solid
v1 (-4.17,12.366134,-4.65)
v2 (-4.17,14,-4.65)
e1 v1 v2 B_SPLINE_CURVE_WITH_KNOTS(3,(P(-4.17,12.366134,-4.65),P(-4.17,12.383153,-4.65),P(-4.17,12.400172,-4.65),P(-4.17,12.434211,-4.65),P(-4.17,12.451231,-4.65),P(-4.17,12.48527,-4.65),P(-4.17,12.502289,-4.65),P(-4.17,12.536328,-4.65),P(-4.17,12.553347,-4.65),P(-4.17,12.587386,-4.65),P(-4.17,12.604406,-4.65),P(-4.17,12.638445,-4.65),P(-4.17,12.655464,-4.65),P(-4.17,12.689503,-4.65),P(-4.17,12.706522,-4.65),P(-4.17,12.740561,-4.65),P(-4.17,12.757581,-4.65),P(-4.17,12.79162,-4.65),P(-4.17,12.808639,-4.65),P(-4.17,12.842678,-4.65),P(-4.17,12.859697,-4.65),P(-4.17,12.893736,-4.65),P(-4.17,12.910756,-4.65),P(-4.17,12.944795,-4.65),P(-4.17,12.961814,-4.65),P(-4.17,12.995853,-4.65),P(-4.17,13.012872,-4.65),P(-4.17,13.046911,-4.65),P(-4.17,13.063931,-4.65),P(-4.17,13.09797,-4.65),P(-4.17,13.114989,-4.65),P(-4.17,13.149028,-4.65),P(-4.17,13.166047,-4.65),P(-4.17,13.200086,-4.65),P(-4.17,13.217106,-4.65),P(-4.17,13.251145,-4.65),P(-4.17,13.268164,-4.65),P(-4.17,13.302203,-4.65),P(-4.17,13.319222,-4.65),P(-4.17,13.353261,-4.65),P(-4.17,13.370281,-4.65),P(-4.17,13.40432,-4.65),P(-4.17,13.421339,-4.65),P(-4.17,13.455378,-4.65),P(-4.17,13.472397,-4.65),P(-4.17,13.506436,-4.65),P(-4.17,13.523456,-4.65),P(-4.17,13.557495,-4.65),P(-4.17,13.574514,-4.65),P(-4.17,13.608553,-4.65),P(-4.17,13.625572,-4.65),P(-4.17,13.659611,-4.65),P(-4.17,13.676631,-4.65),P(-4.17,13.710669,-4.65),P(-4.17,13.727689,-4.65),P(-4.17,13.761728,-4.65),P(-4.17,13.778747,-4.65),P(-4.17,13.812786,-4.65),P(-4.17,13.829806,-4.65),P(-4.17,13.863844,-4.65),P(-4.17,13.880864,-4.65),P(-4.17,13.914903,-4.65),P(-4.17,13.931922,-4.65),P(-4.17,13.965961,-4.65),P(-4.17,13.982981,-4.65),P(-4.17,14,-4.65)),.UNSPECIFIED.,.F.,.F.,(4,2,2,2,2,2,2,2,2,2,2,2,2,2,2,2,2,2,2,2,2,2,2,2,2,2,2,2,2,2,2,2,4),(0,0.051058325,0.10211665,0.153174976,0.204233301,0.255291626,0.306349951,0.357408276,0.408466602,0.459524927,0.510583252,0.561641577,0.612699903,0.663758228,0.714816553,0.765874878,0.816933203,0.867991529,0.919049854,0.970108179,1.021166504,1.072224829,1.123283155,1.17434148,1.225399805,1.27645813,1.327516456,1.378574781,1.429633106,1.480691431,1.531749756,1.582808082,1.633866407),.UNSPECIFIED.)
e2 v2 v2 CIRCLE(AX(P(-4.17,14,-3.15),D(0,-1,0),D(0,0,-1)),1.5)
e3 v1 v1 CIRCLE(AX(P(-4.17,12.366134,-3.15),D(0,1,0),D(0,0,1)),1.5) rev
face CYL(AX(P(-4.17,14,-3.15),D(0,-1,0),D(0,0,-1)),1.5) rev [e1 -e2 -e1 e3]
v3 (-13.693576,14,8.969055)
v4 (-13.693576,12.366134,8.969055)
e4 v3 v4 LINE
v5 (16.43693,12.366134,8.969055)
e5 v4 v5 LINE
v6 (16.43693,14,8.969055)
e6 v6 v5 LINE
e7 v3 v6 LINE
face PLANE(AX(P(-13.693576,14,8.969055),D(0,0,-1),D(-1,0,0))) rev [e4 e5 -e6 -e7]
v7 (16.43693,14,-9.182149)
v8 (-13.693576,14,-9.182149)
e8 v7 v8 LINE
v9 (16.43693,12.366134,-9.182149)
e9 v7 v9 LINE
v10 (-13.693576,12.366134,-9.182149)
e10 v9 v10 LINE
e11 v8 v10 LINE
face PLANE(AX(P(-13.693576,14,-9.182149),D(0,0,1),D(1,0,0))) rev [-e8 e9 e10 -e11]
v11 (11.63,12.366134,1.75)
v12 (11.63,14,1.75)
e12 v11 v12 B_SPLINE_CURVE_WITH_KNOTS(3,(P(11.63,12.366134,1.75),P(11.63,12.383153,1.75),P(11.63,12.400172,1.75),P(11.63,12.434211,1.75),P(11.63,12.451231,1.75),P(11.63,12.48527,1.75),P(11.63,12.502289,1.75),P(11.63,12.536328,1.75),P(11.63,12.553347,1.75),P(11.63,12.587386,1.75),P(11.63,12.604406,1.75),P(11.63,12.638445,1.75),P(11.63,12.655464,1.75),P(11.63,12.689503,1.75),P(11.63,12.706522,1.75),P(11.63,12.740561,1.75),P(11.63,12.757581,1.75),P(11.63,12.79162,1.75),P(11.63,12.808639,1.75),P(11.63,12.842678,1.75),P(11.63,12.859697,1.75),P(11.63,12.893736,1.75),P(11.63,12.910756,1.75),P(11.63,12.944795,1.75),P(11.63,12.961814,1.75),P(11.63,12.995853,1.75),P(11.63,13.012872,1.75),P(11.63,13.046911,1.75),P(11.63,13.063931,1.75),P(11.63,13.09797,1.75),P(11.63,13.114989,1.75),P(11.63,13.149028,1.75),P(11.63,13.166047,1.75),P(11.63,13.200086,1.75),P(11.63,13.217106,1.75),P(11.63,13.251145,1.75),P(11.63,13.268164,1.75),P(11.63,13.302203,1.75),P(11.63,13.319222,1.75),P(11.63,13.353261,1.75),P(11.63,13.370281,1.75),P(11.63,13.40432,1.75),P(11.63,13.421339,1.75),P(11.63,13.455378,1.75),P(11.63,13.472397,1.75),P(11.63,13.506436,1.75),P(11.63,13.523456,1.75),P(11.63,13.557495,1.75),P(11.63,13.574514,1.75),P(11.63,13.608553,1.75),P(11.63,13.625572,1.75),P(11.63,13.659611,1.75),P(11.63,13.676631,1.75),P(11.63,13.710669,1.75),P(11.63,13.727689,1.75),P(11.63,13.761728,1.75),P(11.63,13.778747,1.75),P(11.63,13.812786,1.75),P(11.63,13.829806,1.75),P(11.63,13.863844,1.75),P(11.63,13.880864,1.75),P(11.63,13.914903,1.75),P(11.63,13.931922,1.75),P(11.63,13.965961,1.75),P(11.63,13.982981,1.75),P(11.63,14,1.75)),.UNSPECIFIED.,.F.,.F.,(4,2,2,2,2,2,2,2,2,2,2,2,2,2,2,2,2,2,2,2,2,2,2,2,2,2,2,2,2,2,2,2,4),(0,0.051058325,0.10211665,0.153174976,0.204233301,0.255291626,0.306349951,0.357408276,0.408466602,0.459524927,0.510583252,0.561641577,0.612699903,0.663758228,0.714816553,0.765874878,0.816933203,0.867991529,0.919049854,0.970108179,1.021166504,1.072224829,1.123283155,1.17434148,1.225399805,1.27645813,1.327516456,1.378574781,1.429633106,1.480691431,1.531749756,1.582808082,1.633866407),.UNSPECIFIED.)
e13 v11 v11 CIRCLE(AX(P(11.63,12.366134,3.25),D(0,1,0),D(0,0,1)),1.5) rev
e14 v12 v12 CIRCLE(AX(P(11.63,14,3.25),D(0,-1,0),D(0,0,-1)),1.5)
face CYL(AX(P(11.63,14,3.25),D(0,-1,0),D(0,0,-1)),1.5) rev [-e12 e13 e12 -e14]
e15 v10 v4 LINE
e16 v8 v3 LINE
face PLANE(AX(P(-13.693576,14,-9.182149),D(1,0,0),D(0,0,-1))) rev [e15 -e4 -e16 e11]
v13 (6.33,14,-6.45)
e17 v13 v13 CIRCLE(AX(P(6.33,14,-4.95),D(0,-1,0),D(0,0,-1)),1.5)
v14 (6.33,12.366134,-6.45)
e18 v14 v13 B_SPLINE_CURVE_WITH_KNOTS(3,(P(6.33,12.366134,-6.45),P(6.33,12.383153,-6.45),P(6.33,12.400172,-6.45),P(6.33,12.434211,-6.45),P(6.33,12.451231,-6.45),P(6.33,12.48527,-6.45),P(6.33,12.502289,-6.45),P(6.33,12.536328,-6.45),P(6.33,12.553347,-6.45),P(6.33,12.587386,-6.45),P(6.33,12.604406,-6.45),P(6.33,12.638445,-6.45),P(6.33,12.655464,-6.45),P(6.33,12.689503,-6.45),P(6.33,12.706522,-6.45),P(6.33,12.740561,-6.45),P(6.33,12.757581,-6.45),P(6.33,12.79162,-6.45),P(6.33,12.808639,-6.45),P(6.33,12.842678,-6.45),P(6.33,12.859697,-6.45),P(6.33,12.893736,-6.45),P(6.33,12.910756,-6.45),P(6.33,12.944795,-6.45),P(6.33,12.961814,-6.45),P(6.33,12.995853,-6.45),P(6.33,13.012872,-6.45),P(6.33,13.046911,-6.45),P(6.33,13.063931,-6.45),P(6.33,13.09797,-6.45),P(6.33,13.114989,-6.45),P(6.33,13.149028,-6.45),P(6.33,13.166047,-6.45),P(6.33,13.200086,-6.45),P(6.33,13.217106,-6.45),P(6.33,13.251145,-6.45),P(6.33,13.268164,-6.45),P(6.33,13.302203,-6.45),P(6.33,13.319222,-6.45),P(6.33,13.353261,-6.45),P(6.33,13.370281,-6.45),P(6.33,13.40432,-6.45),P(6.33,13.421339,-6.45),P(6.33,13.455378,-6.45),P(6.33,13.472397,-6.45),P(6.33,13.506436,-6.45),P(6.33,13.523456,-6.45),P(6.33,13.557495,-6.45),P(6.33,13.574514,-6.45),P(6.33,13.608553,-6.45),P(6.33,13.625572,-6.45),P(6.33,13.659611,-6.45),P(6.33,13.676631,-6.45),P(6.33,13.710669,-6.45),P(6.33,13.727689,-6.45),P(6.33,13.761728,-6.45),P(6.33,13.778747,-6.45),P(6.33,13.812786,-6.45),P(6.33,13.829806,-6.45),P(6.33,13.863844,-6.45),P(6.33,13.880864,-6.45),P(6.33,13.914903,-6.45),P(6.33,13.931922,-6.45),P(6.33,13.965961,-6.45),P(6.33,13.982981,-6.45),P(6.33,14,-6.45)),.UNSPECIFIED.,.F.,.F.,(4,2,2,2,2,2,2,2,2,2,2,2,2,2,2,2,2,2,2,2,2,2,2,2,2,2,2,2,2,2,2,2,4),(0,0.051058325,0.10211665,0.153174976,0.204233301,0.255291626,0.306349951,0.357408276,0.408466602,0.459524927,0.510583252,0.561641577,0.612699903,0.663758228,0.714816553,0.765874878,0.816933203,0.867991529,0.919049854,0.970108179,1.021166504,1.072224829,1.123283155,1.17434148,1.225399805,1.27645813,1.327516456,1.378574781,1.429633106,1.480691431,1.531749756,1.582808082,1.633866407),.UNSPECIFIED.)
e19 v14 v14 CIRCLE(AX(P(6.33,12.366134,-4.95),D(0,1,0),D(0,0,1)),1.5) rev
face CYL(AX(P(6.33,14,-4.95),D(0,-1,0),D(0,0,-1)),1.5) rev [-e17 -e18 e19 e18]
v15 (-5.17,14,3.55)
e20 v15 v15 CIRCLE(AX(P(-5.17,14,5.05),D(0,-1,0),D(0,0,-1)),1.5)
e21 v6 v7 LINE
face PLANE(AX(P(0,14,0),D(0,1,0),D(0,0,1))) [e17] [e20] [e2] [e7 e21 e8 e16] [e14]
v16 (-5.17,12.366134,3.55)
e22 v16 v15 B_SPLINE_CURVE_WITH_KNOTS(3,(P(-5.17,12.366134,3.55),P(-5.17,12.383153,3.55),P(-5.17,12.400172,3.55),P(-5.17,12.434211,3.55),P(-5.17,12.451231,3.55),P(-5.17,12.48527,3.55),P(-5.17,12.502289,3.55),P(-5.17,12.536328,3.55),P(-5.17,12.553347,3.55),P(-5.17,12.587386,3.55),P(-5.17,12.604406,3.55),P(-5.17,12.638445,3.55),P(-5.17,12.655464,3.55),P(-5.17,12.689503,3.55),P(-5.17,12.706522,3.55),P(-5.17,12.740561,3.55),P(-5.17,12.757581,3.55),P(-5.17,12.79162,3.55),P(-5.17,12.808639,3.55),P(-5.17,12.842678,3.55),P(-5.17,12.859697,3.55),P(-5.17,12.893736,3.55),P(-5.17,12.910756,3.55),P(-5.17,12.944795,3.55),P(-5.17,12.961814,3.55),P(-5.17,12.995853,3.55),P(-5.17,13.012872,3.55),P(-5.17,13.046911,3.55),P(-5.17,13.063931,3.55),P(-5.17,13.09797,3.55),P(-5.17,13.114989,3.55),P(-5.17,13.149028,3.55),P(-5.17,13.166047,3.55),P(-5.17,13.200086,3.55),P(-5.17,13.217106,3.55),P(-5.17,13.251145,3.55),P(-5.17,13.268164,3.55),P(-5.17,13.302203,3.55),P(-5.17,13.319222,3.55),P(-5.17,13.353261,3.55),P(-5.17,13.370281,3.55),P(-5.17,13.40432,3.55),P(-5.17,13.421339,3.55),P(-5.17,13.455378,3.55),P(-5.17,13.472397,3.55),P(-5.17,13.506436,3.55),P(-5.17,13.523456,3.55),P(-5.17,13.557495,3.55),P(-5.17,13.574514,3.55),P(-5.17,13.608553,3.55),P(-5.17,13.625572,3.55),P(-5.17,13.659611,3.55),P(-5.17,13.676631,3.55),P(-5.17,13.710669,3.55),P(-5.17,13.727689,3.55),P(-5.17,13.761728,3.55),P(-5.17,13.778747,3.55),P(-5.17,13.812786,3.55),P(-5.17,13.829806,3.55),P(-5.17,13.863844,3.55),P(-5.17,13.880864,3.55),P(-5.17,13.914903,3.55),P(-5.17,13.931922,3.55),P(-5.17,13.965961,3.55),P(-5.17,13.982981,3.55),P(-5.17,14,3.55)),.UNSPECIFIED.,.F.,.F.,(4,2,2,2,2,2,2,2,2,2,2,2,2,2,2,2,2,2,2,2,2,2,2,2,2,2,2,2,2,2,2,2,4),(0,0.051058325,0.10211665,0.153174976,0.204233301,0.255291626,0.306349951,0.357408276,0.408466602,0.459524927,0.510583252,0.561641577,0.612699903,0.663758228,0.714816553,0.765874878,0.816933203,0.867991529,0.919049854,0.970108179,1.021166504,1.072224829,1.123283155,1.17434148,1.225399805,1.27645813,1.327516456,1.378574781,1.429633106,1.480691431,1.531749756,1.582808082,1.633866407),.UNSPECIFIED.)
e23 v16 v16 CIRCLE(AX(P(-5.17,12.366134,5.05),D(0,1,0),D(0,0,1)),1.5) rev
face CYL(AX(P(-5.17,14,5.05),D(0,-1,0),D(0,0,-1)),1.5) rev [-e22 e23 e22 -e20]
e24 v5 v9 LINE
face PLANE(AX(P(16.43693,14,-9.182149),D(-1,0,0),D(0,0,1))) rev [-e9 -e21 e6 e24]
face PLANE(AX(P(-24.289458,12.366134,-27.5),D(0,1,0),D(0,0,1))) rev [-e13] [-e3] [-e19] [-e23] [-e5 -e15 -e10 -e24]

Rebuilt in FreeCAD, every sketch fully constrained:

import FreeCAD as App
import Part
import Sketcher
from FreeCAD import Vector
Q = App.Units.Quantity


def add_polygon(sketch, points):
    """Adds a closed chain of lines whose ends are joined by coincident constraints."""
    first, n = sketch.GeometryCount, len(points)
    for a, b in zip(points, points[1:] + points[:1]):
        sketch.addGeometry(Part.LineSegment(App.Vector(*a, 0), App.Vector(*b, 0)), False)
    for i in range(n):
        sketch.addConstraint(Sketcher.Constraint("Coincident", first + i, 2, first + (i + 1) % n, 1))

doc = App.newDocument("Part")
params = doc.addObject("Spreadsheet::Sheet", "Params")
for row, (alias, value) in enumerate([
    ("sketch1_diameter", "3 mm"),
    ("sketch1_width", "35 mm"),
    ("sketch1_height", "55 mm"),
    ("pad1_length", "3 mm"),
    ("pad2_length", "11 mm"),
    ("pocket1_length", "4 mm"),
    ("sketch4_diameter", "3 mm"),
    ("sketch5_diameter", "6 mm"),
    ("pocket3_length", "35.095454 mm"),
    ("pocket3_length2", "2.5 mm"),
], start=1):
    params.set(f"A{row}", alias)
    params.set(f"B{row}", "=" + value)
    params.setAlias(f"B{row}", alias)

body = doc.addObject("PartDesign::Body", "Body")

# Sketch on XZ plane
sketch1 = doc.addObject("Sketcher::SketchObject", "Sketch")
body.addObject(sketch1)
sketch1.AttachmentSupport = (doc.XZ_Plane, [""])
sketch1.MapMode = "FlatFace"
add_polygon(sketch1, [(-17.5, -27.5), (-17.5, 27.5), (17.5, 27.5), (17.5, -27.5)])  # lines 0-3
sketch1.addGeometry(Part.Circle(Vector(-12.5, 25, 0), Vector(0, 0, 1), 1.5), False)  # 4
sketch1.addGeometry(Part.Circle(Vector(12.5, 25, 0), Vector(0, 0, 1), 1.5), False)  # 5
add_polygon(sketch1, [(15.3, 22.8), (14.2, 22.8), (14.2, 21), (15.3, 21)])  # lines 6-9
sketch1.addGeometry(Part.Circle(Vector(-12.5, -25, 0), Vector(0, 0, 1), 1.5), False)  # 10
sketch1.addGeometry(Part.Circle(Vector(12.5, -25, 0), Vector(0, 0, 1), 1.5), False)  # 11
sketch1.addConstraint([
    Sketcher.Constraint("Vertical", 0),
    Sketcher.Constraint("Horizontal", 1),
    Sketcher.Constraint("Vertical", 2),
    Sketcher.Constraint("Horizontal", 3),
    Sketcher.Constraint("Horizontal", 6),
    Sketcher.Constraint("Vertical", 7),
    Sketcher.Constraint("Horizontal", 8),
    Sketcher.Constraint("Vertical", 9),
    Sketcher.Constraint("Equal", 4, 5),
    Sketcher.Constraint("Equal", 5, 10),
    Sketcher.Constraint("Equal", 10, 11),
    Sketcher.Constraint("Symmetric", 5, 3, 10, 3, -1, 1),
    Sketcher.Constraint("Symmetric", 4, 3, 11, 3, -1, 1),
    Sketcher.Constraint("Symmetric", 0, 2, 2, 2, -1, 1),
    Sketcher.Constraint("Symmetric", 4, 3, 5, 3, -2),
    Sketcher.Constraint("Diameter", 4, Q("3 mm")),
    Sketcher.Constraint("DistanceX", 1, 1, 1, 2, Q("35 mm")),
    Sketcher.Constraint("DistanceY", 0, 1, 0, 2, Q("55 mm")),
    Sketcher.Constraint("DistanceY", -1, 1, 4, 3, Q("25 mm")),
    Sketcher.Constraint("DistanceX", 4, 3, 5, 3, Q("25 mm")),
    Sketcher.Constraint("DistanceX", 6, 2, 6, 1, Q("1.053264 mm")),
    Sketcher.Constraint("DistanceY", 7, 2, 7, 1, Q("1.810087 mm")),
    Sketcher.Constraint("DistanceX", -1, 1, 8, 2, Q("15.297218 mm")),
    Sketcher.Constraint("DistanceY", -1, 1, 6, 2, Q("22.801274 mm")),
])
sketch1.setExpression("Constraints[23]", "Params.sketch1_diameter")
sketch1.setExpression("Constraints[24]", "Params.sketch1_width")
sketch1.setExpression("Constraints[25]", "Params.sketch1_height")
pad1 = doc.addObject("PartDesign::Pad", "Pad")
body.addObject(pad1)
pad1.Profile = sketch1
pad1.setExpression("Length", "Params.pad1_length")
pad1.Reversed = True

# Sketch on XZ plane
sketch2 = doc.addObject("Sketcher::SketchObject", "Sketch001")
body.addObject(sketch2)
sketch2.AttachmentSupport = (doc.XZ_Plane, [""])
sketch2.MapMode = "FlatFace"
sketch2.AttachmentOffset = App.Placement(Vector(0, 0, -3), App.Rotation())
add_polygon(sketch2, [(-14, -9), (-14, 9), (16, 9), (16, -9)])  # lines 0-3
sketch2.addConstraint([
    Sketcher.Constraint("Vertical", 0),
    Sketcher.Constraint("Horizontal", 1),
    Sketcher.Constraint("Vertical", 2),
    Sketcher.Constraint("Horizontal", 3),
    Sketcher.Constraint("DistanceX", 1, 1, 1, 2, Q("30.130506 mm")),
    Sketcher.Constraint("DistanceY", 0, 1, 0, 2, Q("18.151203 mm")),
    Sketcher.Constraint("DistanceX", -1, 1, 1, 2, Q("16.43693 mm")),
    Sketcher.Constraint("DistanceY", 2, 2, -1, 1, Q("9.182149 mm")),
])
pad2 = doc.addObject("PartDesign::Pad", "Pad001")
body.addObject(pad2)
pad2.Profile = sketch2
pad2.setExpression("Length", "Params.pad2_length")
pad2.Reversed = True

# Sketch on XZ plane
sketch3 = doc.addObject("Sketcher::SketchObject", "Sketch002")
body.addObject(sketch3)
sketch3.AttachmentSupport = (doc.XZ_Plane, [""])
sketch3.MapMode = "FlatFace"
add_polygon(sketch3, [(-12, 9), (-12, -9), (14, -9), (14, 9)])  # lines 0-3
sketch3.addConstraint([
    Sketcher.Constraint("Vertical", 0),
    Sketcher.Constraint("Horizontal", 1),
    Sketcher.Constraint("Vertical", 2),
    Sketcher.Constraint("Horizontal", 3),
    Sketcher.Constraint("DistanceX", 1, 1, 1, 2, Q("25.972667 mm")),
    Sketcher.Constraint("DistanceY", 0, 2, 0, 1, Q("17.735623 mm")),
    Sketcher.Constraint("DistanceX", 0, 2, -1, 1, Q("11.771471 mm")),
    Sketcher.Constraint("DistanceY", -1, 1, 2, 2, Q("8.829579 mm")),
])
pocket1 = doc.addObject("PartDesign::Pocket", "Pocket")
body.addObject(pocket1)
pocket1.Profile = sketch3
pocket1.setExpression("Length", "Params.pocket1_length")

# Sketch on XZ plane
sketch4 = doc.addObject("Sketcher::SketchObject", "Sketch003")
body.addObject(sketch4)
sketch4.AttachmentSupport = (doc.XZ_Plane, [""])
sketch4.MapMode = "FlatFace"
sketch4.addGeometry([
    Part.Circle(Vector(11.6, 3.2, 0), Vector(0, 0, 1), 1.5),
    Part.Circle(Vector(-5.2, 5, 0), Vector(0, 0, 1), 1.5),
    Part.Circle(Vector(-4.2, -3.1, 0), Vector(0, 0, 1), 1.5),
    Part.Circle(Vector(6.3, -5, 0), Vector(0, 0, 1), 1.5),
], False)
sketch4.addConstraint([
    Sketcher.Constraint("Equal", 0, 1),
    Sketcher.Constraint("Equal", 1, 2),
    Sketcher.Constraint("Equal", 2, 3),
    Sketcher.Constraint("Diameter", 0, Q("3 mm")),
    Sketcher.Constraint("DistanceX", 1, 3, 2, 3, Q("1 mm")),
    Sketcher.Constraint("DistanceY", 3, 3, 1, 3, Q("10 mm")),
    Sketcher.Constraint("DistanceX", 1, 3, 0, 3, Q("16.8 mm")),
    Sketcher.Constraint("DistanceY", 0, 3, 1, 3, Q("1.8 mm")),
    Sketcher.Constraint("DistanceY", 2, 3, 1, 3, Q("8.2 mm")),
    Sketcher.Constraint("DistanceX", 3, 3, 0, 3, Q("5.3 mm")),
    Sketcher.Constraint("DistanceX", -1, 1, 0, 3, Q("11.63 mm")),
    Sketcher.Constraint("DistanceY", -1, 1, 0, 3, Q("3.25 mm")),
])
sketch4.setExpression("Constraints[3]", "Params.sketch4_diameter")
pocket2 = doc.addObject("PartDesign::Pocket", "Pocket001")
body.addObject(pocket2)
pocket2.Profile = sketch4
pocket2.Type = "ThroughAll"
pocket2.Midplane = True

# Sketch on XZ plane
sketch5 = doc.addObject("Sketcher::SketchObject", "Sketch004")
body.addObject(sketch5)
sketch5.AttachmentSupport = (doc.XZ_Plane, [""])
sketch5.MapMode = "FlatFace"
sketch5.AttachmentOffset = App.Placement(Vector(0, 0, -4), App.Rotation())
sketch5.addGeometry([
    Part.Circle(Vector(-5.2, 5, 0), Vector(0, 0, 1), 3),
    Part.Circle(Vector(-4.2, -3.1, 0), Vector(0, 0, 1), 3),
    Part.Circle(Vector(6.3, -5, 0), Vector(0, 0, 1), 3),
    Part.Circle(Vector(11.6, 3.2, 0), Vector(0, 0, 1), 3),
], False)
sketch5.addConstraint([
    Sketcher.Constraint("Equal", 0, 1),
    Sketcher.Constraint("Equal", 1, 2),
    Sketcher.Constraint("Equal", 2, 3),
    Sketcher.Constraint("Diameter", 0, Q("6 mm")),
    Sketcher.Constraint("DistanceX", 0, 3, 1, 3, Q("1 mm")),
    Sketcher.Constraint("DistanceY", 2, 3, 0, 3, Q("10 mm")),
    Sketcher.Constraint("DistanceY", 1, 3, 0, 3, Q("8.2 mm")),
    Sketcher.Constraint("DistanceX", 1, 3, 2, 3, Q("10.5 mm")),
    Sketcher.Constraint("DistanceX", 2, 3, 3, 3, Q("5.3 mm")),
    Sketcher.Constraint("DistanceY", 2, 3, 3, 3, Q("8.2 mm")),
    Sketcher.Constraint("DistanceX", 0, 3, -1, 1, Q("5.17 mm")),
    Sketcher.Constraint("DistanceY", -1, 1, 0, 3, Q("5.05 mm")),
])
sketch5.setExpression("Constraints[3]", "Params.sketch5_diameter")
pocket3 = doc.addObject("PartDesign::Pocket", "Pocket002")
body.addObject(pocket3)
pocket3.Profile = sketch5
pocket3.Type = "TwoLengths"
pocket3.setExpression("Length", "Params.pocket3_length")
pocket3.setExpression("Length2", "Params.pocket3_length2")
pocket3.Reversed = True

# Sketch on XY plane
sketch6 = doc.addObject("Sketcher::SketchObject", "Sketch005")
body.addObject(sketch6)
sketch6.AttachmentSupport = (doc.XY_Plane, [""])
sketch6.MapMode = "FlatFace"
sketch6.AttachmentOffset = App.Placement(Vector(0, 0, 27.5), App.Rotation())
add_polygon(sketch6, [(-24, 12), (-24, -1), (24, -1), (24, 12)])  # lines 0-3
sketch6.addConstraint([
    Sketcher.Constraint("Vertical", 0),
    Sketcher.Constraint("Horizontal", 1),
    Sketcher.Constraint("Vertical", 2),
    Sketcher.Constraint("Horizontal", 3),
    Sketcher.Constraint("DistanceX", 1, 1, 1, 2, Q("48.556861 mm")),
    Sketcher.Constraint("DistanceY", 0, 2, 0, 1, Q("13.798998 mm")),
    Sketcher.Constraint("DistanceX", 0, 2, -1, 1, Q("24.289458 mm")),
    Sketcher.Constraint("DistanceY", 0, 2, -1, 1, Q("1.432864 mm")),
])
pocket4 = doc.addObject("PartDesign::Pocket", "Pocket003")
body.addObject(pocket4)
pocket4.Profile = sketch6
pocket4.Type = "ThroughAll"

doc.recompute()
